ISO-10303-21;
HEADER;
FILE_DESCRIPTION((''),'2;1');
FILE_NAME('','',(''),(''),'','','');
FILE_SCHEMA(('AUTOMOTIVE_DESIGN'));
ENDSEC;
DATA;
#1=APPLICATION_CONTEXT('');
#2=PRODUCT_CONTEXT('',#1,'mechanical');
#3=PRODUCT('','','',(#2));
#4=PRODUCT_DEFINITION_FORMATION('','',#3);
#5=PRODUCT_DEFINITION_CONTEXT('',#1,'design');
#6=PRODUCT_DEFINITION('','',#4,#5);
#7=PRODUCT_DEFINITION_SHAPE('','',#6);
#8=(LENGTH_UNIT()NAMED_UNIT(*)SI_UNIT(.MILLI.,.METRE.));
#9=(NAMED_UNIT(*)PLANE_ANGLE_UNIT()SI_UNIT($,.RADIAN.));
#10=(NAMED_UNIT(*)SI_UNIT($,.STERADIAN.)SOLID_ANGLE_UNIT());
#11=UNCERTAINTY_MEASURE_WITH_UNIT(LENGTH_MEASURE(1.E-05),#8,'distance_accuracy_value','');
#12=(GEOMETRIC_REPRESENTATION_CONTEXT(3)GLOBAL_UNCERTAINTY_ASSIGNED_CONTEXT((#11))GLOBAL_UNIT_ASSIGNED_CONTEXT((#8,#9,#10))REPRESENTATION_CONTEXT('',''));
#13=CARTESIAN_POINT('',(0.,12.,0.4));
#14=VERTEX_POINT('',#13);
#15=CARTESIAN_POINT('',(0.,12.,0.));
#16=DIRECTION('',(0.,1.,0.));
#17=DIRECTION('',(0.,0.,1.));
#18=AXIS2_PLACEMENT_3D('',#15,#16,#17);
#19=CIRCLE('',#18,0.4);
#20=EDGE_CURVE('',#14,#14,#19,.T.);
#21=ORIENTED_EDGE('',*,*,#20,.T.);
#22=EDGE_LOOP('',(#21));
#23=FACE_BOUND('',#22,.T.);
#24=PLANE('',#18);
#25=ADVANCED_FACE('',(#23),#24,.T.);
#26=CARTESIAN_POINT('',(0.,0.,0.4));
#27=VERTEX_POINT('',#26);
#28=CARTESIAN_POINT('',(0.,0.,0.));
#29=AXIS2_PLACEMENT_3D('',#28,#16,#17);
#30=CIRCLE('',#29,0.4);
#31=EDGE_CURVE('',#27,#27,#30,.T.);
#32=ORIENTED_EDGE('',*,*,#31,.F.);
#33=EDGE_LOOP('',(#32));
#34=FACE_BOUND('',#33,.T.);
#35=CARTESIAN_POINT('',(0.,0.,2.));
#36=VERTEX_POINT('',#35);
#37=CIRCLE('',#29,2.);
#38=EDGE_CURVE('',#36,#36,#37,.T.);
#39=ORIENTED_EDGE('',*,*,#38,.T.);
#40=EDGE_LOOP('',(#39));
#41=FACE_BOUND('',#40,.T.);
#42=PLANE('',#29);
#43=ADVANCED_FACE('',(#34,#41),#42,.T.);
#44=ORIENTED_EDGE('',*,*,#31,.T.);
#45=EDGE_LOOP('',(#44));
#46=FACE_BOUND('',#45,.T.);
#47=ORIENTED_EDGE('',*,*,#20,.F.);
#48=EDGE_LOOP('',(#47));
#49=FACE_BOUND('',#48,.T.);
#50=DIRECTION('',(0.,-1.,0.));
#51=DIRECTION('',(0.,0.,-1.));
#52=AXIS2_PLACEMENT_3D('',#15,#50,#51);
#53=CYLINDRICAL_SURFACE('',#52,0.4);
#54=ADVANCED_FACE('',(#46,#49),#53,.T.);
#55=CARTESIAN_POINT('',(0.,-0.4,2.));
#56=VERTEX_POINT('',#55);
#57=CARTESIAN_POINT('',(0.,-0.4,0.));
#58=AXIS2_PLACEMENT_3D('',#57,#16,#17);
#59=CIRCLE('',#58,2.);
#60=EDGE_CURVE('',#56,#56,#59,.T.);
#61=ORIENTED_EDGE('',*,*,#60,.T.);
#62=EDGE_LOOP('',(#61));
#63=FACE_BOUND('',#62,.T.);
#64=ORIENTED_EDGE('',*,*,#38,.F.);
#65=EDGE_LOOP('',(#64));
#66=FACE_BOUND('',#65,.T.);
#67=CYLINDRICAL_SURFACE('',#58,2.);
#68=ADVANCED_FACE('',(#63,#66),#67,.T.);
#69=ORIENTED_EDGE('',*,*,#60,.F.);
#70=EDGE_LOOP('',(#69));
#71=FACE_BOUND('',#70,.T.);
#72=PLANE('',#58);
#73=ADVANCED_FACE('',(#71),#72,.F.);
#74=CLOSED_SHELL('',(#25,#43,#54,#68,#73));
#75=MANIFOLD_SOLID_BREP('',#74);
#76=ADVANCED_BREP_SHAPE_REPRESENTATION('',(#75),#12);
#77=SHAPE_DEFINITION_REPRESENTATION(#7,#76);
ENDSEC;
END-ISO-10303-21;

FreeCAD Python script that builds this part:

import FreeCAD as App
import Part
import Sketcher
from FreeCAD import Vector

doc = App.newDocument("Part")
params = doc.addObject("Spreadsheet::Sheet", "Params")
for row, (alias, value) in enumerate([
    ("sketch1_diameter", "4 mm"),
    ("pad1_length", "0.4 mm"),
    ("sketch2_diameter", "0.8 mm"),
    ("pad2_length", "12 mm"),
], start=1):
    params.set(f"A{row}", alias)
    params.set(f"B{row}", "=" + value)
    params.setAlias(f"B{row}", alias)

body = doc.addObject("PartDesign::Body", "Body")

sketch1 = body.newObject("Sketcher::SketchObject", "Sketch")
sketch1.AttachmentSupport = (doc.getObject("XZ_Plane"), [""])
sketch1.MapMode = "FlatFace"
sketch1.addGeometry(Part.Circle(Vector(0, 0, 0), Vector(0, 0, 1), 2), False)
sketch1.addConstraint(Sketcher.Constraint("Coincident", 0, 3, -1, 1))
sketch1.addConstraint(Sketcher.Constraint("Diameter", 0, 4.0))
sketch1.setExpression("Constraints[1]", "Params.sketch1_diameter")
pad1 = body.newObject("PartDesign::Pad", "Pad")
pad1.Profile = sketch1
pad1.setExpression("Length", "Params.pad1_length")

sketch2 = body.newObject("Sketcher::SketchObject", "Sketch001")
sketch2.AttachmentSupport = (doc.getObject("XZ_Plane"), [""])
sketch2.MapMode = "FlatFace"
sketch2.addGeometry(Part.Circle(Vector(0, 0, 0), Vector(0, 0, 1), 0.4), False)
sketch2.addConstraint(Sketcher.Constraint("Coincident", 0, 3, -1, 1))
sketch2.addConstraint(Sketcher.Constraint("Diameter", 0, 0.8))
sketch2.setExpression("Constraints[1]", "Params.sketch2_diameter")
pad2 = body.newObject("PartDesign::Pad", "Pad001")
pad2.Profile = sketch2
pad2.setExpression("Length", "Params.pad2_length")
pad2.Reversed = True

doc.recompute()
